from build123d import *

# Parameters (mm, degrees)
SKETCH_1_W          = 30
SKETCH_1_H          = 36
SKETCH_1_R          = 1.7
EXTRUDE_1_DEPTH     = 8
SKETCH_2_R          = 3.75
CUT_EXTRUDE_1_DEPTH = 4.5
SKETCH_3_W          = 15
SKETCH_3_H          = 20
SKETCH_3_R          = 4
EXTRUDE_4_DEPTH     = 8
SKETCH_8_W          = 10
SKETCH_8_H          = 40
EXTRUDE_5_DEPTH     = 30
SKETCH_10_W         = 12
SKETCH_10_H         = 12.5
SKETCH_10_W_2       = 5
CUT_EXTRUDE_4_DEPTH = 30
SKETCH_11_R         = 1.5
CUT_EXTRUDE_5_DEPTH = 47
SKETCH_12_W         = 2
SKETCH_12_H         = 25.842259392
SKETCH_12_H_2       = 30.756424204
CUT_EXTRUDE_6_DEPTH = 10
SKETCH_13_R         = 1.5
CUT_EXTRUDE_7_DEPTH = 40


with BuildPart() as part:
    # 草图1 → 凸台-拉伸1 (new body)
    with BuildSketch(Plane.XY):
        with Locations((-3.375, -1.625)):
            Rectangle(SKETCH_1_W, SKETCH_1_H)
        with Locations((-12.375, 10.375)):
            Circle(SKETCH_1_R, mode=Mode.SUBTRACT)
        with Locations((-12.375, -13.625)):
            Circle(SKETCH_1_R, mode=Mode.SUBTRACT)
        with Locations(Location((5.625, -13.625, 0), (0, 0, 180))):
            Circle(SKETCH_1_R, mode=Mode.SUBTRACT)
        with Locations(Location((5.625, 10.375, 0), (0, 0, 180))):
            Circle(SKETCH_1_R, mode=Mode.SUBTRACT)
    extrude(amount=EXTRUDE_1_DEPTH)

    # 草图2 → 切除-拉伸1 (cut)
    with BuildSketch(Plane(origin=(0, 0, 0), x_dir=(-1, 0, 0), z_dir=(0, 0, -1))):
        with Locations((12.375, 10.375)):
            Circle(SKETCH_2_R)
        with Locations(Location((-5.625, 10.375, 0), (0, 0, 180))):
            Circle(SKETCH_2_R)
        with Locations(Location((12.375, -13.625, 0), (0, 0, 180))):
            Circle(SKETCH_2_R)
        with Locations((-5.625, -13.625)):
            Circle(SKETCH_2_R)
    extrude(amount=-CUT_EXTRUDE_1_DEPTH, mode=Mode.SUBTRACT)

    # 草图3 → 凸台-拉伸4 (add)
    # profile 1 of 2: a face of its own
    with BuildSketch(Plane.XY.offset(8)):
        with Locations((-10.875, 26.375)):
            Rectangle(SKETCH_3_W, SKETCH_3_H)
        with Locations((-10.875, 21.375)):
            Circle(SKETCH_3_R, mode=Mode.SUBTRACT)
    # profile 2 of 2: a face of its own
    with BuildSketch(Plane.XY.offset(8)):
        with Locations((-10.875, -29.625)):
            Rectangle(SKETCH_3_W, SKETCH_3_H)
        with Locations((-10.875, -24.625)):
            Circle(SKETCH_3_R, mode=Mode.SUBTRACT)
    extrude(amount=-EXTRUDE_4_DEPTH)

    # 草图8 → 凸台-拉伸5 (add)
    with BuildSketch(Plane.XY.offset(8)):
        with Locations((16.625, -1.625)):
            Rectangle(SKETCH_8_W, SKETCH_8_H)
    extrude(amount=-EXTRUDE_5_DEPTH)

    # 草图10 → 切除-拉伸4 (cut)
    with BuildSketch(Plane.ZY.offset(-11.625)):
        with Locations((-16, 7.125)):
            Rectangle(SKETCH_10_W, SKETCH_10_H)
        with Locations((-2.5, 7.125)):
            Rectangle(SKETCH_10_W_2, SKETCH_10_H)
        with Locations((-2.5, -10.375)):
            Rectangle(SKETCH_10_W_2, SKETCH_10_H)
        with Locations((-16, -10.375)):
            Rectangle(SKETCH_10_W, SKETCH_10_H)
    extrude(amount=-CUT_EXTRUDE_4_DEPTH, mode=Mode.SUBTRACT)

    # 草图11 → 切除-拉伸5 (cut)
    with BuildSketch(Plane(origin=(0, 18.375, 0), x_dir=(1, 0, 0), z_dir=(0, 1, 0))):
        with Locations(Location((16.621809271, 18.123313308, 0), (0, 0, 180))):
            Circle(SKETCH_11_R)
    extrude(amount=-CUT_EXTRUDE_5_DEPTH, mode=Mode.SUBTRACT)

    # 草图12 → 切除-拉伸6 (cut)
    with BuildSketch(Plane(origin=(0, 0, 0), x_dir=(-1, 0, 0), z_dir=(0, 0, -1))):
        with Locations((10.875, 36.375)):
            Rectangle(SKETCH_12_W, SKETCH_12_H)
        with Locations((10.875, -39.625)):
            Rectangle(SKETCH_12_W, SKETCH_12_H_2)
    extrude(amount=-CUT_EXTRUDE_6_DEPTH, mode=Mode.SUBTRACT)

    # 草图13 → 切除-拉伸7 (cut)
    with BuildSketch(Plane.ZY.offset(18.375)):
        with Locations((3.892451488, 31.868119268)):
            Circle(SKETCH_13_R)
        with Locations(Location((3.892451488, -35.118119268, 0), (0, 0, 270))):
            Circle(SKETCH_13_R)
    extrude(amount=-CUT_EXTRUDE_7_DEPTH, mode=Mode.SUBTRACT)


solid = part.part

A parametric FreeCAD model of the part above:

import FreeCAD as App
import Part
import Sketcher

V = App.Vector

doc = App.newDocument("Part")
body = doc.addObject("PartDesign::Body", "Body")

# Sketch on XY plane
sketch1 = body.newObject("Sketcher::SketchObject", "Sketch")
sketch1.AttachmentSupport = (doc.getObject("XY_Plane"), [""])
sketch1.MapMode = "FlatFace"
sketch1.addGeometry(Part.LineSegment(V(-18.4, 16.4, 0), V(-18.4, -19.6, 0)), False)
sketch1.addGeometry(Part.LineSegment(V(-18.4, -19.6, 0), V(11.6, -19.6, 0)), False)
sketch1.addGeometry(Part.LineSegment(V(11.6, -19.6, 0), V(11.6, 16.4, 0)), False)
sketch1.addGeometry(Part.LineSegment(V(11.6, 16.4, 0), V(-18.4, 16.4, 0)), False)
sketch1.addGeometry(Part.Circle(V(-12.4, -13.6, 0), V(0, 0, 1), 1.7), False)
sketch1.addGeometry(Part.Circle(V(5.6, -13.6, 0), V(0, 0, 1), 1.7), False)
sketch1.addGeometry(Part.Circle(V(-12.4, 10.4, 0), V(0, 0, 1), 1.7), False)
sketch1.addGeometry(Part.Circle(V(5.6, 10.4, 0), V(0, 0, 1), 1.7), False)
sketch1.addConstraint(Sketcher.Constraint("Coincident", 0, 2, 1, 1))
sketch1.addConstraint(Sketcher.Constraint("Coincident", 1, 2, 2, 1))
sketch1.addConstraint(Sketcher.Constraint("Coincident", 2, 2, 3, 1))
sketch1.addConstraint(Sketcher.Constraint("Coincident", 3, 2, 0, 1))
sketch1.addConstraint(Sketcher.Constraint("Vertical", 0))
sketch1.addConstraint(Sketcher.Constraint("Horizontal", 1))
sketch1.addConstraint(Sketcher.Constraint("Vertical", 2))
sketch1.addConstraint(Sketcher.Constraint("Horizontal", 3))
sketch1.addConstraint(Sketcher.Constraint("Equal", 4, 5))
sketch1.addConstraint(Sketcher.Constraint("Equal", 5, 6))
sketch1.addConstraint(Sketcher.Constraint("Equal", 6, 7))
sketch1.addConstraint(Sketcher.Constraint("Horizontal", 4, 3, 5, 3))
sketch1.addConstraint(Sketcher.Constraint("Horizontal", 6, 3, 7, 3))
sketch1.addConstraint(Sketcher.Constraint("Vertical", 4, 3, 6, 3))
sketch1.addConstraint(Sketcher.Constraint("Vertical", 5, 3, 7, 3))
sketch1.addConstraint(Sketcher.Constraint("Diameter", 4, 3.4))
sketch1.addConstraint(Sketcher.Constraint("DistanceX", 1, 1, 1, 2, 30.0))
sketch1.addConstraint(Sketcher.Constraint("DistanceY", 0, 2, 0, 1, 36.0))
sketch1.addConstraint(Sketcher.Constraint("DistanceX", 4, 3, 5, 3, 18.0))
sketch1.addConstraint(Sketcher.Constraint("DistanceY", 4, 3, 6, 3, 24.0))
sketch1.addConstraint(Sketcher.Constraint("DistanceX", 0, 2, 4, 3, 6.0))
sketch1.addConstraint(Sketcher.Constraint("DistanceY", 0, 2, 4, 3, 6.0))
sketch1.addConstraint(Sketcher.Constraint("DistanceX", 4, 3, -1, 1, 12.375))
sketch1.addConstraint(Sketcher.Constraint("DistanceY", 4, 3, -1, 1, 13.625))
pad1 = body.newObject("PartDesign::Pad", "Pad")
pad1.Profile = sketch1
pad1.Length = 8

# Sketch on XY plane
sketch2 = body.newObject("Sketcher::SketchObject", "Sketch001")
sketch2.AttachmentSupport = (doc.getObject("XY_Plane"), [""])
sketch2.MapMode = "FlatFace"
sketch2.addGeometry(Part.Circle(V(-12.4, 10.4, 0), V(0, 0, 1), 3.8), False)
sketch2.addGeometry(Part.Circle(V(5.6, 10.4, 0), V(0, 0, 1), 3.8), False)
sketch2.addGeometry(Part.Circle(V(-12.4, -13.6, 0), V(0, 0, 1), 3.8), False)
sketch2.addGeometry(Part.Circle(V(5.6, -13.6, 0), V(0, 0, 1), 3.8), False)
sketch2.addConstraint(Sketcher.Constraint("Equal", 0, 1))
sketch2.addConstraint(Sketcher.Constraint("Equal", 1, 2))
sketch2.addConstraint(Sketcher.Constraint("Equal", 2, 3))
sketch2.addConstraint(Sketcher.Constraint("Horizontal", 0, 3, 1, 3))
sketch2.addConstraint(Sketcher.Constraint("Horizontal", 2, 3, 3, 3))
sketch2.addConstraint(Sketcher.Constraint("Vertical", 0, 3, 2, 3))
sketch2.addConstraint(Sketcher.Constraint("Vertical", 1, 3, 3, 3))
sketch2.addConstraint(Sketcher.Constraint("Diameter", 0, 7.5))
sketch2.addConstraint(Sketcher.Constraint("DistanceX", 0, 3, 1, 3, 18.0))
sketch2.addConstraint(Sketcher.Constraint("DistanceY", 2, 3, 0, 3, 24.0))
sketch2.addConstraint(Sketcher.Constraint("DistanceX", 0, 3, -1, 1, 12.375))
sketch2.addConstraint(Sketcher.Constraint("DistanceY", -1, 1, 0, 3, 10.375))
pocket1 = body.newObject("PartDesign::Pocket", "Pocket")
pocket1.Profile = sketch2
pocket1.Length = 4.5
pocket1.Reversed = True

# Sketch on XY plane
sketch3 = body.newObject("Sketcher::SketchObject", "Sketch002")
sketch3.AttachmentSupport = (doc.getObject("XY_Plane"), [""])
sketch3.MapMode = "FlatFace"
sketch3.AttachmentOffset = App.Placement(V(0, 0, 8), App.Rotation())
sketch3.addGeometry(Part.LineSegment(V(-18.4, 36.4, 0), V(-18.4, 16.4, 0)), False)
sketch3.addGeometry(Part.LineSegment(V(-18.4, 16.4, 0), V(-3.4, 16.4, 0)), False)
sketch3.addGeometry(Part.LineSegment(V(-3.4, 16.4, 0), V(-3.4, 36.4, 0)), False)
sketch3.addGeometry(Part.LineSegment(V(-3.4, 36.4, 0), V(-18.4, 36.4, 0)), False)
sketch3.addGeometry(Part.Circle(V(-10.9, 21.4, 0), V(0, 0, 1), 4), False)
sketch3.addGeometry(Part.LineSegment(V(-18.4, -19.6, 0), V(-18.4, -39.6, 0)), False)
sketch3.addGeometry(Part.LineSegment(V(-18.4, -39.6, 0), V(-3.4, -39.6, 0)), False)
sketch3.addGeometry(Part.LineSegment(V(-3.4, -39.6, 0), V(-3.4, -19.6, 0)), False)
sketch3.addGeometry(Part.LineSegment(V(-3.4, -19.6, 0), V(-18.4, -19.6, 0)), False)
sketch3.addGeometry(Part.Circle(V(-10.9, -24.6, 0), V(0, 0, 1), 4), False)
sketch3.addConstraint(Sketcher.Constraint("Coincident", 0, 2, 1, 1))
sketch3.addConstraint(Sketcher.Constraint("Coincident", 1, 2, 2, 1))
sketch3.addConstraint(Sketcher.Constraint("Coincident", 2, 2, 3, 1))
sketch3.addConstraint(Sketcher.Constraint("Coincident", 3, 2, 0, 1))
sketch3.addConstraint(Sketcher.Constraint("Coincident", 5, 2, 6, 1))
sketch3.addConstraint(Sketcher.Constraint("Coincident", 6, 2, 7, 1))
sketch3.addConstraint(Sketcher.Constraint("Coincident", 7, 2, 8, 1))
sketch3.addConstraint(Sketcher.Constraint("Coincident", 8, 2, 5, 1))
sketch3.addConstraint(Sketcher.Constraint("Vertical", 0))
sketch3.addConstraint(Sketcher.Constraint("Horizontal", 1))
sketch3.addConstraint(Sketcher.Constraint("Vertical", 2))
sketch3.addConstraint(Sketcher.Constraint("Horizontal", 3))
sketch3.addConstraint(Sketcher.Constraint("Vertical", 5))
sketch3.addConstraint(Sketcher.Constraint("Horizontal", 6))
sketch3.addConstraint(Sketcher.Constraint("Vertical", 7))
sketch3.addConstraint(Sketcher.Constraint("Horizontal", 8))
sketch3.addConstraint(Sketcher.Constraint("Equal", 4, 9))
sketch3.addConstraint(Sketcher.Constraint("Vertical", 4, 3, 9, 3))
sketch3.addConstraint(Sketcher.Constraint("Vertical", 3, 2, 5, 2))
sketch3.addConstraint(Sketcher.Constraint("Vertical", 2, 2, 6, 2))
sketch3.addConstraint(Sketcher.Constraint("Equal", 2, 5))
sketch3.addConstraint(Sketcher.Constraint("Diameter", 4, 8.0))
sketch3.addConstraint(Sketcher.Constraint("DistanceX", 1, 1, 1, 2, 15.0))
sketch3.addConstraint(Sketcher.Constraint("DistanceY", 0, 2, 0, 1, 20.0))
sketch3.addConstraint(Sketcher.Constraint("DistanceY", 9, 3, 4, 3, 46.0))
sketch3.addConstraint(Sketcher.Constraint("DistanceY", 0, 2, 4, 3, 5.0))
sketch3.addConstraint(Sketcher.Constraint("DistanceY", 5, 2, 9, 3, 15.0))
sketch3.addConstraint(Sketcher.Constraint("DistanceX", 0, 2, 4, 3, 7.5))
sketch3.addConstraint(Sketcher.Constraint("DistanceX", 4, 3, -1, 1, 10.875))
sketch3.addConstraint(Sketcher.Constraint("DistanceY", -1, 1, 4, 3, 21.375))
pad2 = body.newObject("PartDesign::Pad", "Pad001")
pad2.Profile = sketch3
pad2.Length = 8
pad2.Reversed = True

# Sketch on XY plane
sketch4 = body.newObject("Sketcher::SketchObject", "Sketch003")
sketch4.AttachmentSupport = (doc.getObject("XY_Plane"), [""])
sketch4.MapMode = "FlatFace"
sketch4.AttachmentOffset = App.Placement(V(0, 0, 8), App.Rotation())
sketch4.addGeometry(Part.LineSegment(V(12, 18, 0), V(12, -22, 0)), False)
sketch4.addGeometry(Part.LineSegment(V(12, -22, 0), V(22, -22, 0)), False)
sketch4.addGeometry(Part.LineSegment(V(22, -22, 0), V(22, 18, 0)), False)
sketch4.addGeometry(Part.LineSegment(V(22, 18, 0), V(12, 18, 0)), False)
sketch4.addConstraint(Sketcher.Constraint("Coincident", 0, 2, 1, 1))
sketch4.addConstraint(Sketcher.Constraint("Coincident", 1, 2, 2, 1))
sketch4.addConstraint(Sketcher.Constraint("Coincident", 2, 2, 3, 1))
sketch4.addConstraint(Sketcher.Constraint("Coincident", 3, 2, 0, 1))
sketch4.addConstraint(Sketcher.Constraint("Vertical", 0))
sketch4.addConstraint(Sketcher.Constraint("Horizontal", 1))
sketch4.addConstraint(Sketcher.Constraint("Vertical", 2))
sketch4.addConstraint(Sketcher.Constraint("Horizontal", 3))
sketch4.addConstraint(Sketcher.Constraint("DistanceX", 1, 1, 1, 2, 10.0))
sketch4.addConstraint(Sketcher.Constraint("DistanceY", 0, 2, 0, 1, 40.0))
sketch4.addConstraint(Sketcher.Constraint("DistanceX", -1, 1, 0, 2, 11.625))
sketch4.addConstraint(Sketcher.Constraint("DistanceY", 0, 2, -1, 1, 21.625))
pad3 = body.newObject("PartDesign::Pad", "Pad002")
pad3.Profile = sketch4
pad3.Length = 30
pad3.Reversed = True

# Sketch on YZ plane
sketch5 = body.newObject("Sketcher::SketchObject", "Sketch004")
sketch5.AttachmentSupport = (doc.getObject("YZ_Plane"), [""])
sketch5.MapMode = "FlatFace"
sketch5.AttachmentOffset = App.Placement(V(0, 0, 11.625), App.Rotation())
sketch5.addGeometry(Part.LineSegment(V(13, -22, 0), V(1, -22, 0)), False)
sketch5.addGeometry(Part.LineSegment(V(1, -22, 0), V(1, -10, 0)), False)
sketch5.addGeometry(Part.LineSegment(V(1, -10, 0), V(13, -10, 0)), False)
sketch5.addGeometry(Part.LineSegment(V(13, -10, 0), V(13, -22, 0)), False)
sketch5.addGeometry(Part.LineSegment(V(13, -5, 0), V(1, -5, 0)), False)
sketch5.addGeometry(Part.LineSegment(V(1, -5, 0), V(1, 0, 0)), False)
sketch5.addGeometry(Part.LineSegment(V(1, 0, 0), V(13, 0, 0)), False)
sketch5.addGeometry(Part.LineSegment(V(13, 0, 0), V(13, -5, 0)), False)
sketch5.addGeometry(Part.LineSegment(V(-4, -5, 0), V(-17, -5, 0)), False)
sketch5.addGeometry(Part.LineSegment(V(-17, -5, 0), V(-17, 0, 0)), False)
sketch5.addGeometry(Part.LineSegment(V(-17, 0, 0), V(-4, 0, 0)), False)
sketch5.addGeometry(Part.LineSegment(V(-4, 0, 0), V(-4, -5, 0)), False)
sketch5.addGeometry(Part.LineSegment(V(-4, -22, 0), V(-17, -22, 0)), False)
sketch5.addGeometry(Part.LineSegment(V(-17, -22, 0), V(-17, -10, 0)), False)
sketch5.addGeometry(Part.LineSegment(V(-17, -10, 0), V(-4, -10, 0)), False)
sketch5.addGeometry(Part.LineSegment(V(-4, -10, 0), V(-4, -22, 0)), False)
sketch5.addConstraint(Sketcher.Constraint("Coincident", 0, 2, 1, 1))
sketch5.addConstraint(Sketcher.Constraint("Coincident", 1, 2, 2, 1))
sketch5.addConstraint(Sketcher.Constraint("Coincident", 2, 2, 3, 1))
sketch5.addConstraint(Sketcher.Constraint("Coincident", 3, 2, 0, 1))
sketch5.addConstraint(Sketcher.Constraint("Coincident", 4, 2, 5, 1))
sketch5.addConstraint(Sketcher.Constraint("Coincident", 5, 2, 6, 1))
sketch5.addConstraint(Sketcher.Constraint("Coincident", 6, 2, 7, 1))
sketch5.addConstraint(Sketcher.Constraint("Coincident", 7, 2, 4, 1))
sketch5.addConstraint(Sketcher.Constraint("Coincident", 8, 2, 9, 1))
sketch5.addConstraint(Sketcher.Constraint("Coincident", 9, 2, 10, 1))
sketch5.addConstraint(Sketcher.Constraint("Coincident", 10, 2, 11, 1))
sketch5.addConstraint(Sketcher.Constraint("Coincident", 11, 2, 8, 1))
sketch5.addConstraint(Sketcher.Constraint("Coincident", 12, 2, 13, 1))
sketch5.addConstraint(Sketcher.Constraint("Coincident", 13, 2, 14, 1))
sketch5.addConstraint(Sketcher.Constraint("Coincident", 14, 2, 15, 1))
sketch5.addConstraint(Sketcher.Constraint("Coincident", 15, 2, 12, 1))
sketch5.addConstraint(Sketcher.Constraint("Horizontal", 0))
sketch5.addConstraint(Sketcher.Constraint("Vertical", 1))
sketch5.addConstraint(Sketcher.Constraint("Horizontal", 2))
sketch5.addConstraint(Sketcher.Constraint("Vertical", 3))
sketch5.addConstraint(Sketcher.Constraint("Horizontal", 4))
sketch5.addConstraint(Sketcher.Constraint("Vertical", 5))
sketch5.addConstraint(Sketcher.Constraint("Horizontal", 6))
sketch5.addConstraint(Sketcher.Constraint("Vertical", 7))
sketch5.addConstraint(Sketcher.Constraint("Horizontal", 8))
sketch5.addConstraint(Sketcher.Constraint("Vertical", 9))
sketch5.addConstraint(Sketcher.Constraint("Horizontal", 10))
sketch5.addConstraint(Sketcher.Constraint("Vertical", 11))
sketch5.addConstraint(Sketcher.Constraint("Horizontal", 12))
sketch5.addConstraint(Sketcher.Constraint("Vertical", 13))
sketch5.addConstraint(Sketcher.Constraint("Horizontal", 14))
sketch5.addConstraint(Sketcher.Constraint("Vertical", 15))
sketch5.addConstraint(Sketcher.Constraint("PointOnObject", 5, 2, -1))
sketch5.addConstraint(Sketcher.Constraint("PointOnObject", 9, 2, -1))
sketch5.addConstraint(Sketcher.Constraint("Horizontal", 7, 2, 8, 2))
sketch5.addConstraint(Sketcher.Constraint("Horizontal", 3, 2, 12, 2))
sketch5.addConstraint(Sketcher.Constraint("Horizontal", 2, 2, 13, 2))
sketch5.addConstraint(Sketcher.Constraint("Vertical", 1, 2, 4, 2))
sketch5.addConstraint(Sketcher.Constraint("Vertical", 3, 2, 6, 2))
sketch5.addConstraint(Sketcher.Constraint("Vertical", 9, 2, 12, 2))
sketch5.addConstraint(Sketcher.Constraint("Vertical", 11, 2, 14, 2))
sketch5.addConstraint(Sketcher.Constraint("Equal", 6, 8))
sketch5.addConstraint(Sketcher.Constraint("DistanceY", 1, 1, 1, 2, 12.0))
sketch5.addConstraint(Sketcher.Constraint("DistanceY", 5, 1, 5, 2, 5.0))
sketch5.addConstraint(Sketcher.Constraint("DistanceX", 0, 2, 0, 1, 12.5))
sketch5.addConstraint(Sketcher.Constraint("DistanceY", 0, 2, -1, 1, 22.0))
sketch5.addConstraint(Sketcher.Constraint("DistanceX", 8, 2, 7, 2, 30.0))
sketch5.addConstraint(Sketcher.Constraint("DistanceX", -1, 1, 0, 2, 0.875))
pocket2 = body.newObject("PartDesign::Pocket", "Pocket001")
pocket2.Profile = sketch5
pocket2.Length = 30
pocket2.Reversed = True

# Sketch on XZ plane
sketch6 = body.newObject("Sketcher::SketchObject", "Sketch005")
sketch6.AttachmentSupport = (doc.getObject("XZ_Plane"), [""])
sketch6.MapMode = "FlatFace"
sketch6.AttachmentOffset = App.Placement(V(0, 0, -18.375), App.Rotation())
sketch6.addGeometry(Part.Circle(V(16.6, -18.1, 0), V(0, 0, 1), 1.5), False)
sketch6.addConstraint(Sketcher.Constraint("Diameter", 0, 3.0))
sketch6.addConstraint(Sketcher.Constraint("DistanceX", -1, 1, 0, 3, 16.621809))
sketch6.addConstraint(Sketcher.Constraint("DistanceY", 0, 3, -1, 1, 18.123313))
pocket3 = body.newObject("PartDesign::Pocket", "Pocket002")
pocket3.Profile = sketch6
pocket3.Length = 47
pocket3.Reversed = True

# Sketch on XY plane
sketch7 = body.newObject("Sketcher::SketchObject", "Sketch006")
sketch7.AttachmentSupport = (doc.getObject("XY_Plane"), [""])
sketch7.MapMode = "FlatFace"
sketch7.addGeometry(Part.LineSegment(V(-9.9, 49.3, 0), V(-9.9, 23.5, 0)), False)
sketch7.addGeometry(Part.LineSegment(V(-9.9, 23.5, 0), V(-11.9, 23.5, 0)), False)
sketch7.addGeometry(Part.LineSegment(V(-11.9, 23.5, 0), V(-11.9, 49.3, 0)), False)
sketch7.addGeometry(Part.LineSegment(V(-11.9, 49.3, 0), V(-9.9, 49.3, 0)), False)
sketch7.addGeometry(Part.LineSegment(V(-9.9, -24.2, 0), V(-9.9, -55, 0)), False)
sketch7.addGeometry(Part.LineSegment(V(-9.9, -55, 0), V(-11.9, -55, 0)), False)
sketch7.addGeometry(Part.LineSegment(V(-11.9, -55, 0), V(-11.9, -24.2, 0)), False)
sketch7.addGeometry(Part.LineSegment(V(-11.9, -24.2, 0), V(-9.9, -24.2, 0)), False)
sketch7.addConstraint(Sketcher.Constraint("Coincident", 0, 2, 1, 1))
sketch7.addConstraint(Sketcher.Constraint("Coincident", 1, 2, 2, 1))
sketch7.addConstraint(Sketcher.Constraint("Coincident", 2, 2, 3, 1))
sketch7.addConstraint(Sketcher.Constraint("Coincident", 3, 2, 0, 1))
sketch7.addConstraint(Sketcher.Constraint("Coincident", 4, 2, 5, 1))
sketch7.addConstraint(Sketcher.Constraint("Coincident", 5, 2, 6, 1))
sketch7.addConstraint(Sketcher.Constraint("Coincident", 6, 2, 7, 1))
sketch7.addConstraint(Sketcher.Constraint("Coincident", 7, 2, 4, 1))
sketch7.addConstraint(Sketcher.Constraint("Vertical", 0))
sketch7.addConstraint(Sketcher.Constraint("Horizontal", 1))
sketch7.addConstraint(Sketcher.Constraint("Vertical", 2))
sketch7.addConstraint(Sketcher.Constraint("Horizontal", 3))
sketch7.addConstraint(Sketcher.Constraint("Vertical", 4))
sketch7.addConstraint(Sketcher.Constraint("Horizontal", 5))
sketch7.addConstraint(Sketcher.Constraint("Vertical", 6))
sketch7.addConstraint(Sketcher.Constraint("Horizontal", 7))
sketch7.addConstraint(Sketcher.Constraint("Vertical", 3, 2, 4, 2))
sketch7.addConstraint(Sketcher.Constraint("Vertical", 2, 2, 5, 2))
sketch7.addConstraint(Sketcher.Constraint("DistanceX", 1, 2, 1, 1, 2.0))
sketch7.addConstraint(Sketcher.Constraint("DistanceX", 0, 2, -1, 1, 9.875))
sketch7.addConstraint(Sketcher.Constraint("DistanceY", 0, 2, 0, 1, 25.842259))
sketch7.addConstraint(Sketcher.Constraint("DistanceY", 4, 2, 4, 1, 30.756424))
sketch7.addConstraint(Sketcher.Constraint("DistanceY", -1, 1, 0, 2, 23.45387))
sketch7.addConstraint(Sketcher.Constraint("DistanceY", 4, 2, 3, 2, 104.299342))
pocket4 = body.newObject("PartDesign::Pocket", "Pocket003")
pocket4.Profile = sketch7
pocket4.Length = 10
pocket4.Reversed = True

# Sketch on YZ plane
sketch8 = body.newObject("Sketcher::SketchObject", "Sketch007")
sketch8.AttachmentSupport = (doc.getObject("YZ_Plane"), [""])
sketch8.MapMode = "FlatFace"
sketch8.AttachmentOffset = App.Placement(V(0, 0, -18.375), App.Rotation())
sketch8.addGeometry(Part.Circle(V(31.9, 3.9, 0), V(0, 0, 1), 1.5), False)
sketch8.addGeometry(Part.Circle(V(-35.1, 3.9, 0), V(0, 0, 1), 1.5), False)
sketch8.addConstraint(Sketcher.Constraint("Equal", 0, 1))
sketch8.addConstraint(Sketcher.Constraint("Horizontal", 0, 3, 1, 3))
sketch8.addConstraint(Sketcher.Constraint("Diameter", 0, 3.0))
sketch8.addConstraint(Sketcher.Constraint("DistanceX", -1, 1, 0, 3, 31.868119))
sketch8.addConstraint(Sketcher.Constraint("DistanceY", -1, 1, 0, 3, 3.892451))
sketch8.addConstraint(Sketcher.Constraint("DistanceX", 1, 3, -1, 1, 35.118119))
pocket5 = body.newObject("PartDesign::Pocket", "Pocket004")
pocket5.Profile = sketch8
pocket5.Length = 40
pocket5.Reversed = True

doc.recompute()
